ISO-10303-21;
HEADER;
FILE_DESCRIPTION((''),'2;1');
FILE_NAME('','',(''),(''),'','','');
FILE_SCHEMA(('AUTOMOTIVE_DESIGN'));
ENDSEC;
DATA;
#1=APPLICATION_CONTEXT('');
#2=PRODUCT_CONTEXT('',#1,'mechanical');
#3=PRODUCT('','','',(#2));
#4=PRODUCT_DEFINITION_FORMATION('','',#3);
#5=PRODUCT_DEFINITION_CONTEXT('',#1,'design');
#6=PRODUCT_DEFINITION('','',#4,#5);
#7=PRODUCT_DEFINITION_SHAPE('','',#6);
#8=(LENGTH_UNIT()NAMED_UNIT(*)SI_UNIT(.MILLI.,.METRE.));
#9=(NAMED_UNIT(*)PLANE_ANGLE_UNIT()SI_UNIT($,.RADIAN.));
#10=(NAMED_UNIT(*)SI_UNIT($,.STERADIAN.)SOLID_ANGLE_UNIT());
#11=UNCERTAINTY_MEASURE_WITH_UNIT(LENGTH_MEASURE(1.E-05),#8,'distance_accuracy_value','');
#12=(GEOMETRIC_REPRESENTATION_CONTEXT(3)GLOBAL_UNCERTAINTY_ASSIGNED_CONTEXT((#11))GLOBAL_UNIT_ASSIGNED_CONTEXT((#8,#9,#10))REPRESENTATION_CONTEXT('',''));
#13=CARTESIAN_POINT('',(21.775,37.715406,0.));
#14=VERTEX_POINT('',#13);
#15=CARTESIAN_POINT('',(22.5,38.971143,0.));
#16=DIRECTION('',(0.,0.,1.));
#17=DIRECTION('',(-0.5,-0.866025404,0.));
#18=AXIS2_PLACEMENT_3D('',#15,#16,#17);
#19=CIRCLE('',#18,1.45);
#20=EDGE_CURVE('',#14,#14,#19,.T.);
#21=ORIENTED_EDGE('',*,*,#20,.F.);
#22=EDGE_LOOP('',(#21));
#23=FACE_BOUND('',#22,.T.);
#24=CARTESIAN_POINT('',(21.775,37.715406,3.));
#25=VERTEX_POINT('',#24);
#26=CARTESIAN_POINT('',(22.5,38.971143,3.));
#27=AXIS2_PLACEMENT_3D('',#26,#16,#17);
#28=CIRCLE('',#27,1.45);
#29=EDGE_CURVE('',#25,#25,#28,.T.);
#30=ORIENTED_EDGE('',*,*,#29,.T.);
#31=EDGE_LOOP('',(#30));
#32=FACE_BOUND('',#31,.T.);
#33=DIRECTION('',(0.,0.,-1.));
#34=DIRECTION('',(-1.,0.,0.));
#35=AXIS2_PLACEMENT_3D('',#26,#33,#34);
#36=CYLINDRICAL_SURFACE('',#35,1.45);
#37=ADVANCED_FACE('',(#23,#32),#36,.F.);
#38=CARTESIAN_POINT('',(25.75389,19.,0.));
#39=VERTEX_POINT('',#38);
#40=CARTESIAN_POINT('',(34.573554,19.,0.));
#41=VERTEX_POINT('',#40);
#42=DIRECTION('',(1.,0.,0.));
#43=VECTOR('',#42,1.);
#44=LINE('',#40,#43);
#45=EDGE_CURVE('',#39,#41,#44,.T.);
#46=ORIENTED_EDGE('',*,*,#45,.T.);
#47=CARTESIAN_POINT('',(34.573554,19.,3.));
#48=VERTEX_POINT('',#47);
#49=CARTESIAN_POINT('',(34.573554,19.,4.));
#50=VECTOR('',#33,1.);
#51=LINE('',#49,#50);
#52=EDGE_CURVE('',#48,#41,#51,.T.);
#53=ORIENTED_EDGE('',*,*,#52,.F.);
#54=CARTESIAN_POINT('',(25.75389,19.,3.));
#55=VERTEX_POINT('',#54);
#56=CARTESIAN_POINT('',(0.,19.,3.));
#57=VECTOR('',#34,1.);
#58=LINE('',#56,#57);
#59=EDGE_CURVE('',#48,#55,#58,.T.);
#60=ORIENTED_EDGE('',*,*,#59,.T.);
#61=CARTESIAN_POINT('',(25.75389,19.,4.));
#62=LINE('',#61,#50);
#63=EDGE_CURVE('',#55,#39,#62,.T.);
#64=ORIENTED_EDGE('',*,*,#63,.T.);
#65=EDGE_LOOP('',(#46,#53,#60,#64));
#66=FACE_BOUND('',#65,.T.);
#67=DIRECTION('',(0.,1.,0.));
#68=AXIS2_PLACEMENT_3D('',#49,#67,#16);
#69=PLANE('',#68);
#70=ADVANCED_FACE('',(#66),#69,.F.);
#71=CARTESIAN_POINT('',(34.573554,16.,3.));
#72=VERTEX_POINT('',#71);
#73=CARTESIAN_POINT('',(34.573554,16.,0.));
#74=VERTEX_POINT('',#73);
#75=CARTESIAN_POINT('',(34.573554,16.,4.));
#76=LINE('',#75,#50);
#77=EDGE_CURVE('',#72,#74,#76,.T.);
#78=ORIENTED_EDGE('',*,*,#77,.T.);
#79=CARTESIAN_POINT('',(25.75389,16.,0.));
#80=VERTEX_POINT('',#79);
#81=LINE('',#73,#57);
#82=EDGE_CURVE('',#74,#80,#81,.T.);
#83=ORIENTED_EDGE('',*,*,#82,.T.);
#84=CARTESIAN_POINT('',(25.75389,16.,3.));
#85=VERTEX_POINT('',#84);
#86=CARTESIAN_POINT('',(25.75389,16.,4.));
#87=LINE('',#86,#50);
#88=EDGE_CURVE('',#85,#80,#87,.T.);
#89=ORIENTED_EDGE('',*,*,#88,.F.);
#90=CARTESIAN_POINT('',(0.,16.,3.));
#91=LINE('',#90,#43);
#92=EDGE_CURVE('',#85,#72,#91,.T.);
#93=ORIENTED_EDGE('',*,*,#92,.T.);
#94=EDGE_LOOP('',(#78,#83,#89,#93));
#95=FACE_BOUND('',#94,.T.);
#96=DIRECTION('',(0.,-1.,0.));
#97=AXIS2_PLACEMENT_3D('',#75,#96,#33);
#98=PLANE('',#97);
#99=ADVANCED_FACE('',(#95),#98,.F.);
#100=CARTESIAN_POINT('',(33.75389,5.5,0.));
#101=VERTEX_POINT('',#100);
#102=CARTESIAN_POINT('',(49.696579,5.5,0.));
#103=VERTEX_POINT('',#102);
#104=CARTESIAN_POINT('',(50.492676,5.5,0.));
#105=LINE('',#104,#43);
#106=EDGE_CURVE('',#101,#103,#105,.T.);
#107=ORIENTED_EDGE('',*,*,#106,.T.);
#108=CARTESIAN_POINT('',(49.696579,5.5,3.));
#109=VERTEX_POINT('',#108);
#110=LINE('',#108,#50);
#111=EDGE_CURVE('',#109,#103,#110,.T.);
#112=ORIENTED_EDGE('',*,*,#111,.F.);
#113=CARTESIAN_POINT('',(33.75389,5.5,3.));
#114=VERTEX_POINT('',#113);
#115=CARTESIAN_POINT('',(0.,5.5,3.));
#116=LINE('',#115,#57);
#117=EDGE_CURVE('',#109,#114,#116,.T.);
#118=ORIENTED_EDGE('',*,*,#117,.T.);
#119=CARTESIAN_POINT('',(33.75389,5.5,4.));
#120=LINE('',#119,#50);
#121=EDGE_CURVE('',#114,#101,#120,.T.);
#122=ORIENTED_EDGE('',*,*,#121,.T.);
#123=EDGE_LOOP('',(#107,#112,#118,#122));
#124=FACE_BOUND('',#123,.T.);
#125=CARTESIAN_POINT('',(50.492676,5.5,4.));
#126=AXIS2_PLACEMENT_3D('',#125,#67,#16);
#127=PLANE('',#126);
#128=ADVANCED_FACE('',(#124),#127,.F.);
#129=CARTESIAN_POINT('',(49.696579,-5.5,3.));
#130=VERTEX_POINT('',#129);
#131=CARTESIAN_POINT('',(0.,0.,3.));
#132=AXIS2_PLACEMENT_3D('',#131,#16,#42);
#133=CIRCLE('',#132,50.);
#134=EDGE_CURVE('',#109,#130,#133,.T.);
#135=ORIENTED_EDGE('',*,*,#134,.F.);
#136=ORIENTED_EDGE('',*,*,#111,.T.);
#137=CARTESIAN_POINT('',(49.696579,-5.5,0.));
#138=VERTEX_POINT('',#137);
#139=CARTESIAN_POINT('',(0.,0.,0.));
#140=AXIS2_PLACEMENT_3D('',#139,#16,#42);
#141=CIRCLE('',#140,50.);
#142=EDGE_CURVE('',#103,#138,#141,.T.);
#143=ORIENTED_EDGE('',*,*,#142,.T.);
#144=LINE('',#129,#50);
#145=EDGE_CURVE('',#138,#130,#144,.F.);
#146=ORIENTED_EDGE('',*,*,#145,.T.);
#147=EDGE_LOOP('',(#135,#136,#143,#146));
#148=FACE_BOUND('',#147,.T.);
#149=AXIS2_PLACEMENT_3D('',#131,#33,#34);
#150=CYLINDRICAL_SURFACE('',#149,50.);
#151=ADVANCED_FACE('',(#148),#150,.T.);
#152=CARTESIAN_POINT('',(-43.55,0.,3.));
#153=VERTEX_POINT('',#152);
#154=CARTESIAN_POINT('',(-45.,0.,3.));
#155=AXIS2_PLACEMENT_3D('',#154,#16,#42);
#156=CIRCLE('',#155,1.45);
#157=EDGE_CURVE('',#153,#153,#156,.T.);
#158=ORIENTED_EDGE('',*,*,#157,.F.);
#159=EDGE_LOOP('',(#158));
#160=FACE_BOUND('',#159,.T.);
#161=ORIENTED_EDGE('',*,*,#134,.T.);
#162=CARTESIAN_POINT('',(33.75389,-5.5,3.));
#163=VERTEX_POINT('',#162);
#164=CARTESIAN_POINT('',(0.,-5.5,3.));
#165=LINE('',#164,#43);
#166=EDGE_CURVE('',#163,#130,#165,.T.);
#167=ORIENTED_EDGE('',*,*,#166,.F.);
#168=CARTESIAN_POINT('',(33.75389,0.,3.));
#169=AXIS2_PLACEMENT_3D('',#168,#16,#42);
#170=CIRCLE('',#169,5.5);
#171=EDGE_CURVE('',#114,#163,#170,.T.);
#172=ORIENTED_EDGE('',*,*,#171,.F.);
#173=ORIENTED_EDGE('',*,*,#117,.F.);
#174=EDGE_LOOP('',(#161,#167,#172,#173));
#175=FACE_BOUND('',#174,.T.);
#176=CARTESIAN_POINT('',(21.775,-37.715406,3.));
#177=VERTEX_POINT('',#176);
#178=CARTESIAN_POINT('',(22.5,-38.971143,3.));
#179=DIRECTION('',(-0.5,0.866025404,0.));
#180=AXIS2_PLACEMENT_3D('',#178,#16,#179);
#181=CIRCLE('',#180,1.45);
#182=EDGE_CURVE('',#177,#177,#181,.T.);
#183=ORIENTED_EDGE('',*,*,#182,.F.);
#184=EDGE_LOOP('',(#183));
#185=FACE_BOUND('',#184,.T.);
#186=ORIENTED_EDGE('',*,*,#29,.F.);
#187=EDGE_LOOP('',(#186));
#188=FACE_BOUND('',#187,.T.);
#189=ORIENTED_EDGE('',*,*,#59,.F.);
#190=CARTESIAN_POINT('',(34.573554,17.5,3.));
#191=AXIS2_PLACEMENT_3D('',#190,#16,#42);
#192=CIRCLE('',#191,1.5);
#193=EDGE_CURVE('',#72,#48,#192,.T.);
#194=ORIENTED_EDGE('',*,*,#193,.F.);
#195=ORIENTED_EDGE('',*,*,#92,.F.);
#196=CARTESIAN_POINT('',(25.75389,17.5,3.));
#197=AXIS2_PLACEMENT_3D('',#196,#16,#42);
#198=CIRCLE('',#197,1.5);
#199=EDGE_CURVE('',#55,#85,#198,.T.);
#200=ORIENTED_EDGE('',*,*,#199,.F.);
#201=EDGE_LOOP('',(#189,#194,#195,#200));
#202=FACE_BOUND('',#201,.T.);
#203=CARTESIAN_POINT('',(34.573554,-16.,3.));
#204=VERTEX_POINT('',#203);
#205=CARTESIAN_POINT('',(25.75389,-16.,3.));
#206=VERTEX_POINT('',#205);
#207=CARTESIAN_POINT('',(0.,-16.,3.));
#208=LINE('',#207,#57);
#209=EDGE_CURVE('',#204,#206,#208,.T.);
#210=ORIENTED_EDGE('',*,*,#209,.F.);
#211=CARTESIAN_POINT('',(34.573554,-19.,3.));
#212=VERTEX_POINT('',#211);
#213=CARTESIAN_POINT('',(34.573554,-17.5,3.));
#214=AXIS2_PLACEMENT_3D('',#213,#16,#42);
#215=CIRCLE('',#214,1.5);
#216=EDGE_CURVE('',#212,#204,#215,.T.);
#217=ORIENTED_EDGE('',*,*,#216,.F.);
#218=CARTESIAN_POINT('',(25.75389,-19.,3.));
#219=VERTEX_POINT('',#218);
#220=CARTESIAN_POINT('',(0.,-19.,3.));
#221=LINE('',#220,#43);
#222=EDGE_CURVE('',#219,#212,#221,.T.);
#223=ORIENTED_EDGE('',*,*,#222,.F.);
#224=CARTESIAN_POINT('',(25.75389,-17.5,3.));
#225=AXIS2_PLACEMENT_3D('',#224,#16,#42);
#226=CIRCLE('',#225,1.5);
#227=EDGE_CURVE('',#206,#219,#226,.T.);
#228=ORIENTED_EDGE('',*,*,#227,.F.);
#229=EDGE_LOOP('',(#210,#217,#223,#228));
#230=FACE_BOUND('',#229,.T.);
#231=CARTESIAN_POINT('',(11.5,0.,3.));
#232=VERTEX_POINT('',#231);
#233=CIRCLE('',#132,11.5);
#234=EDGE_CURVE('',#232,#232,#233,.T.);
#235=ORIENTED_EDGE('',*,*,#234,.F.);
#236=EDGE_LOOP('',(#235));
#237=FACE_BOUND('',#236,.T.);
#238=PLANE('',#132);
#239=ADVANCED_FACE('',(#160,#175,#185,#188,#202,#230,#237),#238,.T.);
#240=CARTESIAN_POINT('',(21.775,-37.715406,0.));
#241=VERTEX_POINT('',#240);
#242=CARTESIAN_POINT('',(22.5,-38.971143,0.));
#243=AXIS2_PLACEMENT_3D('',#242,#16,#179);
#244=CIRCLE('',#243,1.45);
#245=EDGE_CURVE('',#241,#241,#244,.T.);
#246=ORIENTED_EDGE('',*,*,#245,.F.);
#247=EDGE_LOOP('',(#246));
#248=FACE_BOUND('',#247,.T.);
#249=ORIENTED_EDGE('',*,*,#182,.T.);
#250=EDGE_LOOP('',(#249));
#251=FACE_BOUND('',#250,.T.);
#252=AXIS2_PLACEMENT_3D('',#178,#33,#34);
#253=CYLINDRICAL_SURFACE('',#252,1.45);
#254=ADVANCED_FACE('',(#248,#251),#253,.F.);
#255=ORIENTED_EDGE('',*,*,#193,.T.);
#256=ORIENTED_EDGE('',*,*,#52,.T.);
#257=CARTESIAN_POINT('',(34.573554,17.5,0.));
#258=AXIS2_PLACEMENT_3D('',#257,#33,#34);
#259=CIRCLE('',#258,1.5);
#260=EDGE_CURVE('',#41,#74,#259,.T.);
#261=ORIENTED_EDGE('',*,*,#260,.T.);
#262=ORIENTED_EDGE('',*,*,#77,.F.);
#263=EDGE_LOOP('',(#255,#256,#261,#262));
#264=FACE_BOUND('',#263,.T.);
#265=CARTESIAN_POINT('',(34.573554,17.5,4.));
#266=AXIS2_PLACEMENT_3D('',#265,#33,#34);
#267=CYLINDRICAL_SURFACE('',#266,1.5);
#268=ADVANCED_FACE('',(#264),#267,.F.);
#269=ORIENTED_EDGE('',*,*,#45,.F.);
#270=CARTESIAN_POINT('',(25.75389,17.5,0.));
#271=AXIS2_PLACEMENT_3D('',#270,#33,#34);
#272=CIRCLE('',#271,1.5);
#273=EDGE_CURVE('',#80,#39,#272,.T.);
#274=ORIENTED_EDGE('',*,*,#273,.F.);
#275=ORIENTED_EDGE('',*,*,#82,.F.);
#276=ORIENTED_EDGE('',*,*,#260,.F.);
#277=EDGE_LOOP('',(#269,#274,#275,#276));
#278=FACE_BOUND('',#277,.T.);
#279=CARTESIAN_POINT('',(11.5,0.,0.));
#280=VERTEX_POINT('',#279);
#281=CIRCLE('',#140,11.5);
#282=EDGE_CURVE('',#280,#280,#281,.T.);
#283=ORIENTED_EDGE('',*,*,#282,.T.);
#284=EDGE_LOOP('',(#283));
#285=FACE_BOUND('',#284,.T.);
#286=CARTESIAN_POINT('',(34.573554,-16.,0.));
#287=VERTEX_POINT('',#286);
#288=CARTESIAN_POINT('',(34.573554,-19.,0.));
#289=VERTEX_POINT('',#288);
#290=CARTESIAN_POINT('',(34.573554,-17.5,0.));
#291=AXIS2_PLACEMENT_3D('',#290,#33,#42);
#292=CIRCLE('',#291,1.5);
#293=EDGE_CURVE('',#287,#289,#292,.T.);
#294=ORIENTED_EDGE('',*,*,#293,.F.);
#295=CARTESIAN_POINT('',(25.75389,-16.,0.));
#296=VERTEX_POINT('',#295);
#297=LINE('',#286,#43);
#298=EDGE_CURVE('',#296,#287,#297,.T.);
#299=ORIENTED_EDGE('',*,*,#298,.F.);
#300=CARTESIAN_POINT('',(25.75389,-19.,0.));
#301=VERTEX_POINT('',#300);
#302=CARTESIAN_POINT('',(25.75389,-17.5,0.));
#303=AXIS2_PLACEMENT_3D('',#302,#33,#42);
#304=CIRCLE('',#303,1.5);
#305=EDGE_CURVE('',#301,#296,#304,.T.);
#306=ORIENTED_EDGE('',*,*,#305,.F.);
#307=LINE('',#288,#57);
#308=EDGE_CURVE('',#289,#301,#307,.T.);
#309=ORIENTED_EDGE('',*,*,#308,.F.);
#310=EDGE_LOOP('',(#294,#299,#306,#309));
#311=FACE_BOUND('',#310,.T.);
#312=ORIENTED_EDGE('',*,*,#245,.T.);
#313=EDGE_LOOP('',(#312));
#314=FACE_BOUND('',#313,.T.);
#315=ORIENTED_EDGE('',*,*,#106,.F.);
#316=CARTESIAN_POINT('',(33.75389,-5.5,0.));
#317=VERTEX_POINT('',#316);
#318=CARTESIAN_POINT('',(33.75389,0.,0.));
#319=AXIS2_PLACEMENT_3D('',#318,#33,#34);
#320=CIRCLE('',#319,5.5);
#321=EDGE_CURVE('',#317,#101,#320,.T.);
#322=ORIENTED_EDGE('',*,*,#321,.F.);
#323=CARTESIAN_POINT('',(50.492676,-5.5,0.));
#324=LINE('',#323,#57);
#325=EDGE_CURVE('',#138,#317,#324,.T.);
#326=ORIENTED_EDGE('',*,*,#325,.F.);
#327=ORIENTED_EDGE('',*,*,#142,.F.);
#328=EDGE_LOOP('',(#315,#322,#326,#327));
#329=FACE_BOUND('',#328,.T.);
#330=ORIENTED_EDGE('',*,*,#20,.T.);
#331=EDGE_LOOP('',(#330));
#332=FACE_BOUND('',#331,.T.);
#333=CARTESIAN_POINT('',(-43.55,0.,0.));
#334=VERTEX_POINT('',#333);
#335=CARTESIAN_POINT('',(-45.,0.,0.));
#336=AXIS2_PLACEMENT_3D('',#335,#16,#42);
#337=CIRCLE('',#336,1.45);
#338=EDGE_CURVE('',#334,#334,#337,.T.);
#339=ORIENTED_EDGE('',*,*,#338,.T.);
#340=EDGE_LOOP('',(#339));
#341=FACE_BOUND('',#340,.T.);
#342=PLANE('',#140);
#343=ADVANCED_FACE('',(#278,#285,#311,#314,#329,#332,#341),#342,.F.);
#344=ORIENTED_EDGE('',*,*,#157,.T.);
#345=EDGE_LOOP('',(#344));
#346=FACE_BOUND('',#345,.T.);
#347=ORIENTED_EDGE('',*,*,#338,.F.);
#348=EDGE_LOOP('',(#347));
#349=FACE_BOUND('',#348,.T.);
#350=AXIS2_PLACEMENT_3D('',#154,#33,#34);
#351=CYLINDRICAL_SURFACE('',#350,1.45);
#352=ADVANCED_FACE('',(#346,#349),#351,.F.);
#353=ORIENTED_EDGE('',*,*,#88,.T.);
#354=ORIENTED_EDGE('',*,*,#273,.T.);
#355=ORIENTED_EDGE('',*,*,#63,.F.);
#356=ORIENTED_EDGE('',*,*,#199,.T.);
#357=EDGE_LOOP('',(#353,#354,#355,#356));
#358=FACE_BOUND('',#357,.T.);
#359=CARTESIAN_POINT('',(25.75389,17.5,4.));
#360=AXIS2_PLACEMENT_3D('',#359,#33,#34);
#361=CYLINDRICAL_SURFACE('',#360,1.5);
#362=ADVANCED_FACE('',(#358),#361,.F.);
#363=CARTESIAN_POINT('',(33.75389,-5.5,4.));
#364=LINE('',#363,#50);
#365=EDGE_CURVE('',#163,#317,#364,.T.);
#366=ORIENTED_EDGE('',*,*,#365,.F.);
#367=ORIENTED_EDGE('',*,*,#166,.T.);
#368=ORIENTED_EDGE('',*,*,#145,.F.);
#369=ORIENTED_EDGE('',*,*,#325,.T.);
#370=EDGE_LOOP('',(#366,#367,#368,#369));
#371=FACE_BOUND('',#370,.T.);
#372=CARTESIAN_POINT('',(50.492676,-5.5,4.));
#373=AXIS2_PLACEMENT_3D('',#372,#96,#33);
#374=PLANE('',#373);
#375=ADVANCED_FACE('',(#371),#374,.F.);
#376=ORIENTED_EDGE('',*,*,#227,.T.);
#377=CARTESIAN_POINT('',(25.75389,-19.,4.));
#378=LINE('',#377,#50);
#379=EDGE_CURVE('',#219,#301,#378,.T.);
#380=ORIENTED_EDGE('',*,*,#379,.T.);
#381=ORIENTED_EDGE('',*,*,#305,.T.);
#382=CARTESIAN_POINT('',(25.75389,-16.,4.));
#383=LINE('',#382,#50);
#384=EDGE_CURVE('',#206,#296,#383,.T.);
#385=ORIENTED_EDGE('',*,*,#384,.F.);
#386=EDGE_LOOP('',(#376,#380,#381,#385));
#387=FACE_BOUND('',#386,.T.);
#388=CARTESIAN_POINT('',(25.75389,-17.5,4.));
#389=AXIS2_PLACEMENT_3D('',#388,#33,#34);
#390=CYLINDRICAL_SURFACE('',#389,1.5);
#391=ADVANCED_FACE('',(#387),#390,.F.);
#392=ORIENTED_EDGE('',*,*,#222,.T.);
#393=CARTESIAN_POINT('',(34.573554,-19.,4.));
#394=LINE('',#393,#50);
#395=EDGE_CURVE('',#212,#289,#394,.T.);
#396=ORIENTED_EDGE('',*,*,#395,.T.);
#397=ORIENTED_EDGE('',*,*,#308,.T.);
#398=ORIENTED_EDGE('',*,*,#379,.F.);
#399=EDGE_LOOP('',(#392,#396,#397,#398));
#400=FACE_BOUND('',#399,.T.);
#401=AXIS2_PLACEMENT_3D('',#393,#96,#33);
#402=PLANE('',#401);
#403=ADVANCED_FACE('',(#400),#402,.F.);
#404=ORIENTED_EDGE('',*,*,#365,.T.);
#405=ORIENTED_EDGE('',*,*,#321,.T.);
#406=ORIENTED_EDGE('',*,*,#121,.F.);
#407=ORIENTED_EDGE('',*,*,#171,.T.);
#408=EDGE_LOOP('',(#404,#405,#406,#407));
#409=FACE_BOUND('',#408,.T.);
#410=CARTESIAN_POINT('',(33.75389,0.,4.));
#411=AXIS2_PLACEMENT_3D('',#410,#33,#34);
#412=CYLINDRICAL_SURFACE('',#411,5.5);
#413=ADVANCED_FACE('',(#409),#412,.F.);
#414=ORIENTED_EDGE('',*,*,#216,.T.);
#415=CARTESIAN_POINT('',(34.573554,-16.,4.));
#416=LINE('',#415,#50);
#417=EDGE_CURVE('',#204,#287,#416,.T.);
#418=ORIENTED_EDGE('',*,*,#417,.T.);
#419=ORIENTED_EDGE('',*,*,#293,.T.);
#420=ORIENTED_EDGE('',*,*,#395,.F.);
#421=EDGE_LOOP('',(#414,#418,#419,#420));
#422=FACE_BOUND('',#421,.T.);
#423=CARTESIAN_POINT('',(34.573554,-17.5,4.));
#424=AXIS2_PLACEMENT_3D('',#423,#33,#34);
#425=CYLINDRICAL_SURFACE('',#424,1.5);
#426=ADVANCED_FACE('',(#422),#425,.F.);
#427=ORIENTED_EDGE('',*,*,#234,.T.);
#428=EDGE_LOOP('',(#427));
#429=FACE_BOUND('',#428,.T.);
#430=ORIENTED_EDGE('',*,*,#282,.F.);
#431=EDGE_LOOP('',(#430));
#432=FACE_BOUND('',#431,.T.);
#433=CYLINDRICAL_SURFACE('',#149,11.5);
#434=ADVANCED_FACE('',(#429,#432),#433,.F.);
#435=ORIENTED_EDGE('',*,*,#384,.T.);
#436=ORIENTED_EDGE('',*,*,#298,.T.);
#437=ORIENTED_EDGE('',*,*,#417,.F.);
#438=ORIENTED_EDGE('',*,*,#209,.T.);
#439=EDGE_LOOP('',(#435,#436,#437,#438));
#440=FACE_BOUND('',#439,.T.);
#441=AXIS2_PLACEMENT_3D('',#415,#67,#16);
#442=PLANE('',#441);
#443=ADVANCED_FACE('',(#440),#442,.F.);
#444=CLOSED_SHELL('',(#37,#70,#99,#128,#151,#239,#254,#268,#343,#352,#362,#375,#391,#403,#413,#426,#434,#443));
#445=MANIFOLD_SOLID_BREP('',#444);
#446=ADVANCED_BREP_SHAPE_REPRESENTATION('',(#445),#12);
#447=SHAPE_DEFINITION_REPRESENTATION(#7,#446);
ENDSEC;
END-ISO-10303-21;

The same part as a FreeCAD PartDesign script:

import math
import FreeCAD as App
import Part
import Sketcher
from FreeCAD import Vector
Q = App.Units.Quantity

doc = App.newDocument("Part")
body = doc.addObject("PartDesign::Body", "Body")

# Sketch on XY plane
sketch1 = body.newObject("Sketcher::SketchObject", "Sketch")
sketch1.AttachmentSupport = (doc.getObject("XY_Plane"), [""])
sketch1.MapMode = "FlatFace"
sketch1.addGeometry(Part.Circle(Vector(0, 0, 0), Vector(0, 0, 1), 50), False)
sketch1.addGeometry(Part.Circle(Vector(0, 0, 0), Vector(0, 0, 1), 12), False)
sketch1.addConstraint(Sketcher.Constraint("Coincident", 0, 3, -1, 1))
sketch1.addConstraint(Sketcher.Constraint("Coincident", 1, 3, -1, 1))
sketch1.addConstraint(Sketcher.Constraint("Diameter", 0, Q("100 mm")))
sketch1.addConstraint(Sketcher.Constraint("Diameter", 1, Q("23 mm")))
pad1 = body.newObject("PartDesign::Pad", "Pad")
pad1.Profile = sketch1
pad1.Length = 3

# Sketch on XY plane
sketch2 = body.newObject("Sketcher::SketchObject", "Sketch001")
sketch2.AttachmentSupport = (doc.getObject("XY_Plane"), [""])
sketch2.MapMode = "FlatFace"
sketch2.addGeometry(Part.LineSegment(Vector(33.8, 5.5, 0), Vector(50.5, 5.5, 0)), False)
sketch2.addGeometry(Part.ArcOfCircle(Part.Circle(Vector(50.5, 0, 0), Vector(0, 0, 1), 5.5), math.radians(-90), math.radians(90)), False)
sketch2.addGeometry(Part.LineSegment(Vector(50.5, -5.5, 0), Vector(33.8, -5.5, 0)), False)
sketch2.addGeometry(Part.ArcOfCircle(Part.Circle(Vector(33.8, 0, 0), Vector(0, 0, 1), 5.5), math.radians(90), math.radians(270)), False)
sketch2.addGeometry(Part.LineSegment(Vector(25.8, 19, 0), Vector(34.6, 19, 0)), False)
sketch2.addGeometry(Part.ArcOfCircle(Part.Circle(Vector(34.6, 17.5, 0), Vector(0, 0, 1), 1.5), math.radians(-90), math.radians(90)), False)
sketch2.addGeometry(Part.LineSegment(Vector(34.6, 16, 0), Vector(25.8, 16, 0)), False)
sketch2.addGeometry(Part.ArcOfCircle(Part.Circle(Vector(25.8, 17.5, 0), Vector(0, 0, 1), 1.5), math.radians(90), math.radians(270)), False)
sketch2.addGeometry(Part.LineSegment(Vector(34.6, -19, 0), Vector(25.8, -19, 0)), False)
sketch2.addGeometry(Part.ArcOfCircle(Part.Circle(Vector(25.8, -17.5, 0), Vector(0, 0, 1), 1.5), math.radians(90), math.radians(270)), False)
sketch2.addGeometry(Part.LineSegment(Vector(25.8, -16, 0), Vector(34.6, -16, 0)), False)
sketch2.addGeometry(Part.ArcOfCircle(Part.Circle(Vector(34.6, -17.5, 0), Vector(0, 0, 1), 1.5), math.radians(-90), math.radians(90)), False)
sketch2.addConstraint(Sketcher.Constraint("Tangent", 0, 2, 1, 2))
sketch2.addConstraint(Sketcher.Constraint("Tangent", 1, 1, 2, 1))
sketch2.addConstraint(Sketcher.Constraint("Tangent", 2, 2, 3, 2))
sketch2.addConstraint(Sketcher.Constraint("Tangent", 3, 1, 0, 1))
sketch2.addConstraint(Sketcher.Constraint("Tangent", 4, 2, 5, 2))
sketch2.addConstraint(Sketcher.Constraint("Tangent", 5, 1, 6, 1))
sketch2.addConstraint(Sketcher.Constraint("Tangent", 6, 2, 7, 2))
sketch2.addConstraint(Sketcher.Constraint("Tangent", 7, 1, 4, 1))
sketch2.addConstraint(Sketcher.Constraint("Tangent", 8, 2, 9, 2))
sketch2.addConstraint(Sketcher.Constraint("Tangent", 9, 1, 10, 1))
sketch2.addConstraint(Sketcher.Constraint("Tangent", 10, 2, 11, 2))
sketch2.addConstraint(Sketcher.Constraint("Tangent", 11, 1, 8, 1))
sketch2.addConstraint(Sketcher.Constraint("Horizontal", 0))
sketch2.addConstraint(Sketcher.Constraint("Horizontal", 2))
sketch2.addConstraint(Sketcher.Constraint("Horizontal", 4))
sketch2.addConstraint(Sketcher.Constraint("Horizontal", 6))
sketch2.addConstraint(Sketcher.Constraint("Horizontal", 8))
sketch2.addConstraint(Sketcher.Constraint("Horizontal", 10))
sketch2.addConstraint(Sketcher.Constraint("Equal", 7, 9))
sketch2.addConstraint(Sketcher.Constraint("Symmetric", 7, 3, 9, 3, -1))
sketch2.addConstraint(Sketcher.Constraint("PointOnObject", 1, 3, -1))
sketch2.addConstraint(Sketcher.Constraint("Vertical", 5, 3, 11, 3))
sketch2.addConstraint(Sketcher.Constraint("Radius", 1, Q("5.5 mm")))
sketch2.addConstraint(Sketcher.Constraint("Radius", 5, Q("1.5 mm")))
sketch2.addConstraint(Sketcher.Constraint("DistanceY", -1, 1, 4, 2, Q("19 mm")))
sketch2.addConstraint(Sketcher.Constraint("DistanceX", 7, 3, 3, 3, Q("8 mm")))
sketch2.addConstraint(Sketcher.Constraint("DistanceX", 0, 1, 0, 2, Q("16.738786 mm")))
sketch2.addConstraint(Sketcher.Constraint("DistanceX", 4, 1, 4, 2, Q("8.819664 mm")))
sketch2.addConstraint(Sketcher.Constraint("DistanceX", -1, 1, 3, 3, Q("33.75389 mm")))
pocket1 = body.newObject("PartDesign::Pocket", "Pocket")
pocket1.Profile = sketch2
pocket1.Length = 4
pocket1.Reversed = True

# Sketch on XY plane
sketch3 = body.newObject("Sketcher::SketchObject", "Sketch002")
sketch3.AttachmentSupport = (doc.getObject("XY_Plane"), [""])
sketch3.MapMode = "FlatFace"
sketch3.addGeometry(Part.Circle(Vector(-45, 0, 0), Vector(0, 0, 1), 1.4), False)
sketch3.addConstraint(Sketcher.Constraint("PointOnObject", 0, 3, -1))
sketch3.addConstraint(Sketcher.Constraint("Diameter", 0, Q("2.9 mm")))
sketch3.addConstraint(Sketcher.Constraint("DistanceX", 0, 3, -1, 1, Q("45 mm")))
pocket2 = body.newObject("PartDesign::Pocket", "Pocket001")
pocket2.Profile = sketch3
pocket2.Type = "ThroughAll"
pocket2.Reversed = True
doc.recompute()

polarpattern = body.newObject("PartDesign::PolarPattern", "PolarPattern")
polarpattern.Originals = [pocket2]
polarpattern.Axis = (doc.getObject("Z_Axis"), [""])
polarpattern.Angle = 360
polarpattern.Occurrences = 3
body.Tip = polarpattern

doc.recompute()
